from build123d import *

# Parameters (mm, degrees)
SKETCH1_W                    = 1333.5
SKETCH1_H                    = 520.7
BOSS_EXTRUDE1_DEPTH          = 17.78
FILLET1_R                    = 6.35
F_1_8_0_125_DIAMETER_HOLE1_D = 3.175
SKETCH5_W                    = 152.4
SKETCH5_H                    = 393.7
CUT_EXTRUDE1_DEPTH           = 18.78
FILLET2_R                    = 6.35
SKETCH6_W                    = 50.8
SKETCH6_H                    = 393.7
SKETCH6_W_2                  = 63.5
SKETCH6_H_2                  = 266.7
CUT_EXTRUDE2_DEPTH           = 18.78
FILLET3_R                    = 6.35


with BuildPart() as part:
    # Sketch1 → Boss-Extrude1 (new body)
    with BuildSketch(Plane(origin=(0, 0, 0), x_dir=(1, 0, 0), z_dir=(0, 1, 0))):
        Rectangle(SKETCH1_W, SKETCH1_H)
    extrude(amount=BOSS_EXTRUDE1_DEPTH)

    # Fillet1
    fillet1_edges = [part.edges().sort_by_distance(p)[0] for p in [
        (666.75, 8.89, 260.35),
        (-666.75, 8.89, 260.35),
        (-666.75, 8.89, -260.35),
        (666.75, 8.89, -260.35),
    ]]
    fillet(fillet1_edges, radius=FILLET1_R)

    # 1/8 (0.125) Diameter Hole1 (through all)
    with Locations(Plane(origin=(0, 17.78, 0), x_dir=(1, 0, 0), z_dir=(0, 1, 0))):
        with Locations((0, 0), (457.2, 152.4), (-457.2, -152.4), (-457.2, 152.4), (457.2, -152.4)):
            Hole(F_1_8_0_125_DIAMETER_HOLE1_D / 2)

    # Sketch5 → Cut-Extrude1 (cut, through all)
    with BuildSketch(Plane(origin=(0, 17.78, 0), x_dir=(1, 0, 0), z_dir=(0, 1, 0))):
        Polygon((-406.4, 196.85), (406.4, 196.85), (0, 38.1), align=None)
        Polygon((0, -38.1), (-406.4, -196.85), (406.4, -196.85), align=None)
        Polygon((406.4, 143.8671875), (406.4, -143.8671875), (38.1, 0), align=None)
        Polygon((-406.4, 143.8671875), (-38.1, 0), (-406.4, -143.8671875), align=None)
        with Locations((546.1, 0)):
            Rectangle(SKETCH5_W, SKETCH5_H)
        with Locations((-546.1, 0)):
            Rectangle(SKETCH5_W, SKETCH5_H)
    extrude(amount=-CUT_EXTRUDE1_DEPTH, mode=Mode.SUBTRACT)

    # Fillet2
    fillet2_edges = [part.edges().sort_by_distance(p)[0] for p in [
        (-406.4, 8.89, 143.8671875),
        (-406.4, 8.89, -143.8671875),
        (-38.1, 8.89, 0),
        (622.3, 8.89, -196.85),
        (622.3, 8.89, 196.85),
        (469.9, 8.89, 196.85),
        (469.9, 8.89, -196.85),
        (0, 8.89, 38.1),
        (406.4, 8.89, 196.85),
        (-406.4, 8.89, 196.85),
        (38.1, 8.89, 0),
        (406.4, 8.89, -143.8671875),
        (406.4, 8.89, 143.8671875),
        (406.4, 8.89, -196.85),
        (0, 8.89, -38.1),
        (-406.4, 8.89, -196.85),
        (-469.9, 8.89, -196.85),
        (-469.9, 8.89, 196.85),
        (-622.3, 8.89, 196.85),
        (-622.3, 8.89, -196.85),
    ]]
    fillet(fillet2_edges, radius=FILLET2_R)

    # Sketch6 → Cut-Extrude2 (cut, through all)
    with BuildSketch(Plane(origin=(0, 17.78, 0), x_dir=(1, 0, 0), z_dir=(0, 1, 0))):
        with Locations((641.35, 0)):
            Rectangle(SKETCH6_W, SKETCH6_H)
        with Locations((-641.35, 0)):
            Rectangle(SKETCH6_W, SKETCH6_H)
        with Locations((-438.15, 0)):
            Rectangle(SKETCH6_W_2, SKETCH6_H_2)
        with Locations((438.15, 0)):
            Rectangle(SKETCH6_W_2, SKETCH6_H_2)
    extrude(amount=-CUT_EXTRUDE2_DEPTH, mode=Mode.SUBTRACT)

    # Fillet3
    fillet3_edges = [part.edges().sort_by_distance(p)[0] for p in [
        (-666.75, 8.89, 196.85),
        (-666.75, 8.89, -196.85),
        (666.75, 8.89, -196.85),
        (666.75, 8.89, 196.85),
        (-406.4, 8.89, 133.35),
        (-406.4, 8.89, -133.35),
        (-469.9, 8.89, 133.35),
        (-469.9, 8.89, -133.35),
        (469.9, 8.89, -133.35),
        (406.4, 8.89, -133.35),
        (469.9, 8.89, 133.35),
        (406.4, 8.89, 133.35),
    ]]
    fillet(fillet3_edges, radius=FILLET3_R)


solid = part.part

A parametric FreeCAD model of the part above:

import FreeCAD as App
import Part
import Sketcher
Q = App.Units.Quantity


def edges_at(feature, points):
    """Names of the edges that pass closest to the given points."""
    edges = feature.Shape.Edges
    near = lambda p: min(range(len(edges)), key=lambda i: edges[i].distToShape(Part.Vertex(*p))[0])
    return sorted({f"Edge{near(p) + 1}" for p in points})


def add_polygon(sketch, points):
    """Adds a closed chain of lines whose ends are joined by coincident constraints."""
    first, n = sketch.GeometryCount, len(points)
    for a, b in zip(points, points[1:] + points[:1]):
        sketch.addGeometry(Part.LineSegment(App.Vector(*a, 0), App.Vector(*b, 0)), False)
    for i in range(n):
        sketch.addConstraint(Sketcher.Constraint("Coincident", first + i, 2, first + (i + 1) % n, 1))

doc = App.newDocument("Part")
body = doc.addObject("PartDesign::Body", "Body")

sketch1 = body.newObject("Sketcher::SketchObject", "Sketch")
sketch1.AttachmentSupport = (doc.getObject("XZ_Plane"), [""])
sketch1.MapMode = "FlatFace"
add_polygon(sketch1, [(-667, -260), (-667, 260), (667, 260), (667, -260)])
sketch1.addConstraint(Sketcher.Constraint("Vertical", 0))
sketch1.addConstraint(Sketcher.Constraint("Horizontal", 1))
sketch1.addConstraint(Sketcher.Constraint("Vertical", 2))
sketch1.addConstraint(Sketcher.Constraint("Horizontal", 3))
sketch1.addConstraint(Sketcher.Constraint("Symmetric", 0, 2, 2, 2, -1, 1))
sketch1.addConstraint(Sketcher.Constraint("DistanceX", 1, 1, 1, 2, Q("52.5 in")))
sketch1.addConstraint(Sketcher.Constraint("DistanceY", 0, 1, 0, 2, Q("20.5 in")))
pad1 = body.newObject("PartDesign::Pad", "Pad")
pad1.Profile = sketch1
pad1.Length = Q("0.7 in")
pad1.Reversed = True
doc.recompute()

fillet = body.newObject("PartDesign::Fillet", "Fillet")
fillet.Base = (pad1, edges_at(pad1, [
    (666.75, 8.89, 260.35),
    (-666.75, 8.89, 260.35),
    (-666.75, 8.89, -260.35),
    (666.75, 8.89, -260.35),
]))
fillet.Radius = Q("0.25 in")

sketch2 = body.newObject("Sketcher::SketchObject", "Sketch001")
sketch2.AttachmentSupport = (doc.getObject("XZ_Plane"), [""])
sketch2.MapMode = "FlatFace"
sketch2.AttachmentOffset = App.Placement(App.Vector(0, 0, -0.7 * 25.4), App.Rotation())
sketch2.addGeometry(Part.Circle(App.Vector(0, 0, 0), App.Vector(0, 0, 1), 1.6), False)
sketch2.addGeometry(Part.Circle(App.Vector(457.2, -152.4, 0), App.Vector(0, 0, 1), 1.6), False)
sketch2.addGeometry(Part.Circle(App.Vector(-457.2, 152.4, 0), App.Vector(0, 0, 1), 1.6), False)
sketch2.addGeometry(Part.Circle(App.Vector(-457.2, -152.4, 0), App.Vector(0, 0, 1), 1.6), False)
sketch2.addGeometry(Part.Circle(App.Vector(457.2, 152.4, 0), App.Vector(0, 0, 1), 1.6), False)
sketch2.addConstraint(Sketcher.Constraint("Coincident", 0, 3, -1, 1))
sketch2.addConstraint(Sketcher.Constraint("Equal", 0, 1))
sketch2.addConstraint(Sketcher.Constraint("Equal", 1, 2))
sketch2.addConstraint(Sketcher.Constraint("Equal", 2, 3))
sketch2.addConstraint(Sketcher.Constraint("Equal", 3, 4))
sketch2.addConstraint(Sketcher.Constraint("Symmetric", 1, 3, 2, 3, -1, 1))
sketch2.addConstraint(Sketcher.Constraint("Symmetric", 3, 3, 4, 3, -1, 1))
sketch2.addConstraint(Sketcher.Constraint("Symmetric", 1, 3, 3, 3, -2))
sketch2.addConstraint(Sketcher.Constraint("Diameter", 0, Q("0.125 in")))
sketch2.addConstraint(Sketcher.Constraint("DistanceX", -1, 1, 1, 3, Q("18 in")))
sketch2.addConstraint(Sketcher.Constraint("DistanceY", 1, 3, -1, 1, Q("6 in")))
doc.recompute()
hole = body.newObject("PartDesign::Hole", "Hole")
hole.Profile = sketch2
hole.ThreadType = "None"
hole.Diameter = Q("0.125 in")
hole.DepthType = "ThroughAll"
hole.Reversed = True

sketch3 = body.newObject("Sketcher::SketchObject", "Sketch002")
sketch3.AttachmentSupport = (doc.getObject("XZ_Plane"), [""])
sketch3.MapMode = "FlatFace"
sketch3.AttachmentOffset = App.Placement(App.Vector(0, 0, -0.7 * 25.4), App.Rotation())
add_polygon(sketch3, [(406, -197), (-406, -197), (0, -38)])
add_polygon(sketch3, [(0, 38), (-406, 197), (406, 197)])
add_polygon(sketch3, [(406, 144), (406, -144), (38, 0)])
add_polygon(sketch3, [(-38, 0), (-406, -144), (-406, 144)])
add_polygon(sketch3, [(470, -197), (470, 197), (622, 197), (622, -197)])
add_polygon(sketch3, [(-622, -197), (-622, 197), (-470, 197), (-470, -197)])
sketch3.addConstraint(Sketcher.Constraint("Horizontal", 0))
sketch3.addConstraint(Sketcher.Constraint("Horizontal", 4))
sketch3.addConstraint(Sketcher.Constraint("Vertical", 6))
sketch3.addConstraint(Sketcher.Constraint("Vertical", 10))
sketch3.addConstraint(Sketcher.Constraint("Vertical", 12))
sketch3.addConstraint(Sketcher.Constraint("Horizontal", 13))
sketch3.addConstraint(Sketcher.Constraint("Vertical", 14))
sketch3.addConstraint(Sketcher.Constraint("Horizontal", 15))
sketch3.addConstraint(Sketcher.Constraint("Vertical", 16))
sketch3.addConstraint(Sketcher.Constraint("Horizontal", 17))
sketch3.addConstraint(Sketcher.Constraint("Vertical", 18))
sketch3.addConstraint(Sketcher.Constraint("Horizontal", 19))
sketch3.addConstraint(Sketcher.Constraint("Symmetric", 2, 2, 3, 2, -1, 1))
sketch3.addConstraint(Sketcher.Constraint("Symmetric", 1, 2, 5, 2, -1, 1))
sketch3.addConstraint(Sketcher.Constraint("Symmetric", 8, 2, 9, 2, -1, 1))
sketch3.addConstraint(Sketcher.Constraint("Symmetric", 7, 2, 11, 2, -1, 1))
sketch3.addConstraint(Sketcher.Constraint("Symmetric", 14, 2, 16, 2, -1, 1))
sketch3.addConstraint(Sketcher.Constraint("Symmetric", 12, 2, 18, 2, -1, 1))
sketch3.addConstraint(Sketcher.Constraint("PointOnObject", 1, 2, -2))
sketch3.addConstraint(Sketcher.Constraint("PointOnObject", 7, 2, -1))
sketch3.addConstraint(Sketcher.Constraint("Parallel", 1, 5))
sketch3.addConstraint(Sketcher.Constraint("Parallel", 3, 7))
sketch3.addConstraint(Sketcher.Constraint("Parallel", 5, 8))
sketch3.addConstraint(Sketcher.Constraint("Parallel", 7, 11))
sketch3.addConstraint(Sketcher.Constraint("Horizontal", 6, 2, 9, 2))
sketch3.addConstraint(Sketcher.Constraint("Horizontal", 4, 2, 12, 2))
sketch3.addConstraint(Sketcher.Constraint("Horizontal", 2, 2, 14, 2))
sketch3.addConstraint(Sketcher.Constraint("Vertical", 4, 2, 6, 2))
sketch3.addConstraint(Sketcher.Constraint("DistanceX", 0, 2, 0, 1, Q("32 in")))
sketch3.addConstraint(Sketcher.Constraint("DistanceX", 13, 1, 13, 2, Q("6 in")))
sketch3.addConstraint(Sketcher.Constraint("DistanceY", 12, 1, 12, 2, Q("15.5 in")))
sketch3.addConstraint(Sketcher.Constraint("DistanceY", 1, 2, 5, 2, Q("3 in")))
sketch3.addConstraint(Sketcher.Constraint("DistanceX", 11, 2, 7, 2, Q("3 in")))
sketch3.addConstraint(Sketcher.Constraint("DistanceX", 7, 2, 12, 2, Q("17 in")))
pocket1 = body.newObject("PartDesign::Pocket", "Pocket")
pocket1.Profile = sketch3
pocket1.Type = "ThroughAll"
pocket1.Reversed = True
doc.recompute()

fillet2 = body.newObject("PartDesign::Fillet", "Fillet001")
fillet2.Base = (pocket1, edges_at(pocket1, [
    (-406.4, 8.89, 143.867),
    (-406.4, 8.89, -143.867),
    (-38.1, 8.89, 0),
    (622.3, 8.89, -196.85),
    (622.3, 8.89, 196.85),
    (469.9, 8.89, 196.85),
    (469.9, 8.89, -196.85),
    (0, 8.89, 38.1),
    (406.4, 8.89, 196.85),
    (-406.4, 8.89, 196.85),
    (38.1, 8.89, 0),
    (406.4, 8.89, -143.867),
    (406.4, 8.89, 143.867),
    (406.4, 8.89, -196.85),
    (0, 8.89, -38.1),
    (-406.4, 8.89, -196.85),
    (-469.9, 8.89, -196.85),
    (-469.9, 8.89, 196.85),
    (-622.3, 8.89, 196.85),
    (-622.3, 8.89, -196.85),
]))
fillet2.Radius = Q("0.25 in")

sketch4 = body.newObject("Sketcher::SketchObject", "Sketch003")
sketch4.AttachmentSupport = (doc.getObject("XZ_Plane"), [""])
sketch4.MapMode = "FlatFace"
sketch4.AttachmentOffset = App.Placement(App.Vector(0, 0, -0.7 * 25.4), App.Rotation())
add_polygon(sketch4, [(616, -197), (616, 197), (667, 197), (667, -197)])
add_polygon(sketch4, [(-667, -197), (-667, 197), (-616, 197), (-616, -197)])
add_polygon(sketch4, [(-470, -133), (-470, 133), (-406, 133), (-406, -133)])
add_polygon(sketch4, [(406, -133), (406, 133), (470, 133), (470, -133)])
sketch4.addConstraint(Sketcher.Constraint("Vertical", 0))
sketch4.addConstraint(Sketcher.Constraint("Horizontal", 1))
sketch4.addConstraint(Sketcher.Constraint("Vertical", 2))
sketch4.addConstraint(Sketcher.Constraint("Horizontal", 3))
sketch4.addConstraint(Sketcher.Constraint("Vertical", 4))
sketch4.addConstraint(Sketcher.Constraint("Horizontal", 5))
sketch4.addConstraint(Sketcher.Constraint("Vertical", 6))
sketch4.addConstraint(Sketcher.Constraint("Horizontal", 7))
sketch4.addConstraint(Sketcher.Constraint("Vertical", 8))
sketch4.addConstraint(Sketcher.Constraint("Horizontal", 9))
sketch4.addConstraint(Sketcher.Constraint("Vertical", 10))
sketch4.addConstraint(Sketcher.Constraint("Horizontal", 11))
sketch4.addConstraint(Sketcher.Constraint("Vertical", 12))
sketch4.addConstraint(Sketcher.Constraint("Horizontal", 13))
sketch4.addConstraint(Sketcher.Constraint("Vertical", 14))
sketch4.addConstraint(Sketcher.Constraint("Horizontal", 15))
sketch4.addConstraint(Sketcher.Constraint("Symmetric", 2, 2, 4, 2, -1, 1))
sketch4.addConstraint(Sketcher.Constraint("Symmetric", 0, 2, 6, 2, -1, 1))
sketch4.addConstraint(Sketcher.Constraint("Symmetric", 10, 2, 12, 2, -1, 1))
sketch4.addConstraint(Sketcher.Constraint("Symmetric", 8, 2, 14, 2, -1, 1))
sketch4.addConstraint(Sketcher.Constraint("Horizontal", 1, 2, 4, 2))
sketch4.addConstraint(Sketcher.Constraint("Horizontal", 9, 2, 12, 2))
sketch4.addConstraint(Sketcher.Constraint("DistanceX", 1, 1, 1, 2, Q("2 in")))
sketch4.addConstraint(Sketcher.Constraint("DistanceX", 9, 1, 9, 2, Q("2.5 in")))
sketch4.addConstraint(Sketcher.Constraint("DistanceY", 0, 1, 0, 2, Q("15.5 in")))
sketch4.addConstraint(Sketcher.Constraint("DistanceY", 8, 1, 8, 2, Q("10.5 in")))
sketch4.addConstraint(Sketcher.Constraint("DistanceX", 9, 2, -1, 1, Q("16 in")))
sketch4.addConstraint(Sketcher.Constraint("DistanceX", 4, 2, 0, 2, Q("50.5 in")))
pocket2 = body.newObject("PartDesign::Pocket", "Pocket001")
pocket2.Profile = sketch4
pocket2.Type = "ThroughAll"
pocket2.Reversed = True
doc.recompute()

fillet3 = body.newObject("PartDesign::Fillet", "Fillet002")
fillet3.Base = (pocket2, edges_at(pocket2, [
    (-666.75, 8.89, 196.85),
    (-666.75, 8.89, -196.85),
    (666.75, 8.89, -196.85),
    (666.75, 8.89, 196.85),
    (-406.4, 8.89, 133.35),
    (-406.4, 8.89, -133.35),
    (-469.9, 8.89, 133.35),
    (-469.9, 8.89, -133.35),
    (469.9, 8.89, -133.35),
    (406.4, 8.89, -133.35),
    (469.9, 8.89, 133.35),
    (406.4, 8.89, 133.35),
]))
fillet3.Radius = Q("0.25 in")

doc.recompute()
